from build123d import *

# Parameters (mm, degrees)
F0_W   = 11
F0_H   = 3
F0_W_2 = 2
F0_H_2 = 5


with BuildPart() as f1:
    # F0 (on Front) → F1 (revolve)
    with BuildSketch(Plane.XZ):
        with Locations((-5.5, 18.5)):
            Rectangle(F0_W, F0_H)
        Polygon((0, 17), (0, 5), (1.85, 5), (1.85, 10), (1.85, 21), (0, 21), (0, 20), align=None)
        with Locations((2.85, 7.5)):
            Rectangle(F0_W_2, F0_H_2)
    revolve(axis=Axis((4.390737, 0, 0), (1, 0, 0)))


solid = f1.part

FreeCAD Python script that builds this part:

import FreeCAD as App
import Part
import Sketcher

V = App.Vector


def add_polygon(sketch, points):
    """Adds a closed chain of lines whose ends are joined by coincident constraints."""
    first, n = sketch.GeometryCount, len(points)
    for a, b in zip(points, points[1:] + points[:1]):
        sketch.addGeometry(Part.LineSegment(App.Vector(*a, 0), App.Vector(*b, 0)), False)
    for i in range(n):
        sketch.addConstraint(Sketcher.Constraint("Coincident", first + i, 2, first + (i + 1) % n, 1))

doc = App.newDocument("Part")
body = doc.addObject("PartDesign::Body", "Body")

# Sketch on XZ plane
sketch1 = doc.addObject("Sketcher::SketchObject", "Sketch")
body.addObject(sketch1)
sketch1.AttachmentSupport = (doc.XZ_Plane, [""])
sketch1.MapMode = "FlatFace"
add_polygon(sketch1, [(-11, 20), (-11, 17), (0, 17), (0, 5), (3.85, 5), (3.85, 10), (1.85, 10), (1.85, 21), (0, 21), (0, 20)])  # lines 0-9
sketch1.addConstraint(Sketcher.Constraint("Vertical", 0))
sketch1.addConstraint(Sketcher.Constraint("Horizontal", 1))
sketch1.addConstraint(Sketcher.Constraint("Vertical", 2))
sketch1.addConstraint(Sketcher.Constraint("Horizontal", 3))
sketch1.addConstraint(Sketcher.Constraint("Vertical", 4))
sketch1.addConstraint(Sketcher.Constraint("Horizontal", 5))
sketch1.addConstraint(Sketcher.Constraint("Vertical", 6))
sketch1.addConstraint(Sketcher.Constraint("Horizontal", 7))
sketch1.addConstraint(Sketcher.Constraint("Vertical", 8))
sketch1.addConstraint(Sketcher.Constraint("Horizontal", 9))
sketch1.addConstraint(Sketcher.Constraint("PointOnObject", 1, 2, -2))
sketch1.addConstraint(Sketcher.Constraint("PointOnObject", 7, 2, -2))
sketch1.addConstraint(Sketcher.Constraint("Equal", 9, 6))
sketch1.addConstraint(Sketcher.Constraint("DistanceX", 1, 1, 1, 2, 11.0))
sketch1.addConstraint(Sketcher.Constraint("DistanceX", 5, 2, 5, 1, 2.0))
sketch1.addConstraint(Sketcher.Constraint("DistanceY", 0, 2, 0, 1, 3.0))
sketch1.addConstraint(Sketcher.Constraint("DistanceY", 2, 2, 2, 1, 12.0))
sketch1.addConstraint(Sketcher.Constraint("DistanceY", 4, 1, 4, 2, 5.0))
sketch1.addConstraint(Sketcher.Constraint("DistanceY", -1, 1, 0, 2, 17.0))
sketch1.addConstraint(Sketcher.Constraint("DistanceX", 3, 1, 3, 2, 3.85))
revolution = doc.addObject("PartDesign::Revolution", "Revolution")
body.addObject(revolution)
revolution.Profile = sketch1
revolution.ReferenceAxis = (sketch1, ["H_Axis"])
revolution.Angle = 360

doc.recompute()
